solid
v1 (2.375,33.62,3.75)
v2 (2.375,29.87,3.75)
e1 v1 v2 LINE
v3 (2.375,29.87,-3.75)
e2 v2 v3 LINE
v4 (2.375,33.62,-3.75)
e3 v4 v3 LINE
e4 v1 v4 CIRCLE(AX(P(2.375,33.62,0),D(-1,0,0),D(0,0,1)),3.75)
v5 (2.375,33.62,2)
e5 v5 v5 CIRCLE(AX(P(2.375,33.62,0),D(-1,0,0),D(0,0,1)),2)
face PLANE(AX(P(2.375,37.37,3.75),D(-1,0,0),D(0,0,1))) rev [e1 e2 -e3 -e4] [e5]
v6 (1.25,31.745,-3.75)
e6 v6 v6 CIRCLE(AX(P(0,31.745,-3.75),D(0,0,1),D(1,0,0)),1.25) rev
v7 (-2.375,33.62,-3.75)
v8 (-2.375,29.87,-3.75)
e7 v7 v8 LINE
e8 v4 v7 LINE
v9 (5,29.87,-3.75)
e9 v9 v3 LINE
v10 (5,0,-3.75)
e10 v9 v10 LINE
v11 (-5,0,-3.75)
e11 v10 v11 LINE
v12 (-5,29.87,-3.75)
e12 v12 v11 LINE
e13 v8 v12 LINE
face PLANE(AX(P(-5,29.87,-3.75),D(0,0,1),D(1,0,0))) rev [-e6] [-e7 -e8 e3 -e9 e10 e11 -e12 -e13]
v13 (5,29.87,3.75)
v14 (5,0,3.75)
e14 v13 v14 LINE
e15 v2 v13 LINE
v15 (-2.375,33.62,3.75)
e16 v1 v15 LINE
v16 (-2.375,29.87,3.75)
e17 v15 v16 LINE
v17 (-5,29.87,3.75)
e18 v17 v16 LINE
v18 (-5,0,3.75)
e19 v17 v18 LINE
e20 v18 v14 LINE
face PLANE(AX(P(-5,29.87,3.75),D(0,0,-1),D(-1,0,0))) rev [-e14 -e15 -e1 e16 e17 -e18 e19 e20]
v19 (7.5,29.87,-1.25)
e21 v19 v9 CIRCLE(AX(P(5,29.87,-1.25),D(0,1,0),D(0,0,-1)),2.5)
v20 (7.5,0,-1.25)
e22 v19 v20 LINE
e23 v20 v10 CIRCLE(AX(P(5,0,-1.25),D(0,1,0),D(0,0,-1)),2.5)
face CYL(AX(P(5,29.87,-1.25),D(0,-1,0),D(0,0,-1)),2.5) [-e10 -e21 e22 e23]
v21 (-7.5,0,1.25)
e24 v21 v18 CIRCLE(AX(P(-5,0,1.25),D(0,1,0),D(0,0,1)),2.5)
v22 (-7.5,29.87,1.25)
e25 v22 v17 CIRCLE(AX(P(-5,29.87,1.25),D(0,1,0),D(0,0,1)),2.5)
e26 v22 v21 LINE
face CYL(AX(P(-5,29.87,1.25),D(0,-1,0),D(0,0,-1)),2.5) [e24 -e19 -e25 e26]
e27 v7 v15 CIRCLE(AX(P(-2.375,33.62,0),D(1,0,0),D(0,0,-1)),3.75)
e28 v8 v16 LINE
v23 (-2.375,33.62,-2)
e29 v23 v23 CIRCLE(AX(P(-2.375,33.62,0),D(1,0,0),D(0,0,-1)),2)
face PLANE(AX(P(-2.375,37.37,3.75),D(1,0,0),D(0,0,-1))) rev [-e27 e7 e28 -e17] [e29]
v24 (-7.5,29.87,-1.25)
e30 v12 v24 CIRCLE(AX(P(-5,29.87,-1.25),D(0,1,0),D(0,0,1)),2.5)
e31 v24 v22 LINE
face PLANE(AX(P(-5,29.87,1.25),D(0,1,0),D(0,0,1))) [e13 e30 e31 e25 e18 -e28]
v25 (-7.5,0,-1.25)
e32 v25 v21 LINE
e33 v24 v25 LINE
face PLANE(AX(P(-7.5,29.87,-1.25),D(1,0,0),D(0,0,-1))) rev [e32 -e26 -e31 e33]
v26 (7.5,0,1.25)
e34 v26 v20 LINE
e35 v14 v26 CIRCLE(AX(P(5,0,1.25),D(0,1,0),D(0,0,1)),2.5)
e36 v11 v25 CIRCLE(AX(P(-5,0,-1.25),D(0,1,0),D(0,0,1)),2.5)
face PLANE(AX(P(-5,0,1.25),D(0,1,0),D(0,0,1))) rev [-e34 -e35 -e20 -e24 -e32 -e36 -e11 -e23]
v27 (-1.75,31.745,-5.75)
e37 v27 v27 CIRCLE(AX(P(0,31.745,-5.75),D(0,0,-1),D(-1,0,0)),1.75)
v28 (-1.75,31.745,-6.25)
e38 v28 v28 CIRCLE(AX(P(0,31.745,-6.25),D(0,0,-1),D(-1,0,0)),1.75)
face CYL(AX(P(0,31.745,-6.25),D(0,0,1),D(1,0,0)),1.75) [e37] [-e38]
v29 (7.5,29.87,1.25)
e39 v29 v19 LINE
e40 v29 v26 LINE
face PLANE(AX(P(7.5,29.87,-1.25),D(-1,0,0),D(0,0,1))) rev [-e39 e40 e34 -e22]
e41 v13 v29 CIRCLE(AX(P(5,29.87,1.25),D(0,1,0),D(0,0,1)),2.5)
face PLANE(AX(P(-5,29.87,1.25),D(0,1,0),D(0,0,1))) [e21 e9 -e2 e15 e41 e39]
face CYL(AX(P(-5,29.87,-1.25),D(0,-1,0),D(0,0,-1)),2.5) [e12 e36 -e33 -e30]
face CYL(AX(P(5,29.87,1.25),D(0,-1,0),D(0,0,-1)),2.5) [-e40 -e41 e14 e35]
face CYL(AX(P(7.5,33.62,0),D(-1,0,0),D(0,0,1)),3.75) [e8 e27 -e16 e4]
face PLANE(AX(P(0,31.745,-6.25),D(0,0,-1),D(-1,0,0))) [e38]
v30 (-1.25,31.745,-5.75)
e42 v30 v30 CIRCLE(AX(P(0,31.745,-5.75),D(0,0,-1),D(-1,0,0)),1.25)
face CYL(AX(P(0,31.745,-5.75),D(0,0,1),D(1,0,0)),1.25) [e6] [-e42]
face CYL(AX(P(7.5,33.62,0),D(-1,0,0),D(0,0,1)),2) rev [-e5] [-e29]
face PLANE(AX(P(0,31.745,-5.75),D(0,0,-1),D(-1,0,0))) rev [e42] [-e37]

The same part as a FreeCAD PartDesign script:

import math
import FreeCAD as App
import Part
import Sketcher
from FreeCAD import Vector
Q = App.Units.Quantity

doc = App.newDocument("Part")
params = doc.addObject("Spreadsheet::Sheet", "Params")
for row, (alias, value) in enumerate([
    ("sketch1_radius", "2.5 mm"),
    ("sketch1_width", "10 mm"),
    ("sketch1_height", "2.5 mm"),
    ("pad1_length", "29.87 mm"),
    ("sketch2_height", "7.5 mm"),
    ("sketch2_width", "4.75 mm"),
    ("pad2_length", "7.5 mm"),
    ("sketch3_diameter", "4 mm"),
    ("sketch3_radius", "3.75 mm"),
    ("sketch4_diameter", "2.5 mm"),
    ("pad3_length", "2 mm"),
    ("sketch5_diameter", "3.5 mm"),
    ("pad4_length", "0.5 mm"),
], start=1):
    params.set(f"A{row}", alias)
    params.set(f"B{row}", "=" + value)
    params.setAlias(f"B{row}", alias)

body = doc.addObject("PartDesign::Body", "Body")

sketch1 = body.newObject("Sketcher::SketchObject", "Sketch")
sketch1.AttachmentSupport = (doc.getObject("XZ_Plane"), [""])
sketch1.MapMode = "FlatFace"
sketch1.addGeometry(Part.LineSegment(Vector(5, -3.8, 0), Vector(-5, -3.8, 0)), False)
sketch1.addGeometry(Part.ArcOfCircle(Part.Circle(Vector(-5, -1.2, 0), Vector(0, 0, 1), 2.5), math.radians(180), math.radians(270)), False)
sketch1.addGeometry(Part.LineSegment(Vector(-7.5, -1.2, 0), Vector(-7.5, 1.2, 0)), False)
sketch1.addGeometry(Part.ArcOfCircle(Part.Circle(Vector(-5, 1.2, 0), Vector(0, 0, 1), 2.5), math.radians(90), math.radians(180)), False)
sketch1.addGeometry(Part.LineSegment(Vector(-5, 3.8, 0), Vector(5, 3.8, 0)), False)
sketch1.addGeometry(Part.ArcOfCircle(Part.Circle(Vector(5, 1.2, 0), Vector(0, 0, 1), 2.5), math.radians(0), math.radians(90)), False)
sketch1.addGeometry(Part.LineSegment(Vector(7.5, 1.2, 0), Vector(7.5, -1.2, 0)), False)
sketch1.addGeometry(Part.ArcOfCircle(Part.Circle(Vector(5, -1.2, 0), Vector(0, 0, 1), 2.5), math.radians(-90), math.radians(0)), False)
sketch1.addConstraint(Sketcher.Constraint("Tangent", 0, 2, 1, 2))
sketch1.addConstraint(Sketcher.Constraint("Tangent", 1, 1, 2, 1))
sketch1.addConstraint(Sketcher.Constraint("Tangent", 2, 2, 3, 2))
sketch1.addConstraint(Sketcher.Constraint("Tangent", 3, 1, 4, 1))
sketch1.addConstraint(Sketcher.Constraint("Tangent", 4, 2, 5, 2))
sketch1.addConstraint(Sketcher.Constraint("Tangent", 5, 1, 6, 1))
sketch1.addConstraint(Sketcher.Constraint("Tangent", 6, 2, 7, 2))
sketch1.addConstraint(Sketcher.Constraint("Tangent", 7, 1, 0, 1))
sketch1.addConstraint(Sketcher.Constraint("Horizontal", 0))
sketch1.addConstraint(Sketcher.Constraint("Vertical", 2))
sketch1.addConstraint(Sketcher.Constraint("Horizontal", 4))
sketch1.addConstraint(Sketcher.Constraint("Vertical", 6))
sketch1.addConstraint(Sketcher.Constraint("Equal", 1, 3))
sketch1.addConstraint(Sketcher.Constraint("Equal", 3, 5))
sketch1.addConstraint(Sketcher.Constraint("Equal", 5, 7))
sketch1.addConstraint(Sketcher.Constraint("Symmetric", 1, 3, 5, 3, -1, 1))
sketch1.addConstraint(Sketcher.Constraint("Radius", 1, Q("2.5 mm")))
sketch1.addConstraint(Sketcher.Constraint("DistanceX", 0, 2, 0, 1, Q("10 mm")))
sketch1.addConstraint(Sketcher.Constraint("DistanceY", 2, 1, 2, 2, Q("2.5 mm")))
sketch1.setExpression("Constraints[16]", "Params.sketch1_radius")
sketch1.setExpression("Constraints[17]", "Params.sketch1_width")
sketch1.setExpression("Constraints[18]", "Params.sketch1_height")
pad1 = body.newObject("PartDesign::Pad", "Pad")
pad1.Profile = sketch1
pad1.setExpression("Length", "Params.pad1_length")
pad1.Reversed = True

sketch2 = body.newObject("Sketcher::SketchObject", "Sketch001")
sketch2.AttachmentSupport = (doc.getObject("XZ_Plane"), [""])
sketch2.MapMode = "FlatFace"
sketch2.AttachmentOffset = App.Placement(Vector(0, 0, -29.87), App.Rotation())
sketch2.addGeometry(Part.LineSegment(Vector(-2.4, -3.8, 0), Vector(-2.4, 3.8, 0)), False)
sketch2.addGeometry(Part.LineSegment(Vector(-2.4, 3.8, 0), Vector(2.4, 3.8, 0)), False)
sketch2.addGeometry(Part.LineSegment(Vector(2.4, 3.8, 0), Vector(2.4, -3.8, 0)), False)
sketch2.addGeometry(Part.LineSegment(Vector(2.4, -3.8, 0), Vector(-2.4, -3.8, 0)), False)
sketch2.addConstraint(Sketcher.Constraint("Coincident", 0, 2, 1, 1))
sketch2.addConstraint(Sketcher.Constraint("Coincident", 1, 2, 2, 1))
sketch2.addConstraint(Sketcher.Constraint("Coincident", 2, 2, 3, 1))
sketch2.addConstraint(Sketcher.Constraint("Coincident", 3, 2, 0, 1))
sketch2.addConstraint(Sketcher.Constraint("Vertical", 0))
sketch2.addConstraint(Sketcher.Constraint("Horizontal", 1))
sketch2.addConstraint(Sketcher.Constraint("Vertical", 2))
sketch2.addConstraint(Sketcher.Constraint("Horizontal", 3))
sketch2.addConstraint(Sketcher.Constraint("Symmetric", 0, 2, 2, 2, -1, 1))
sketch2.addConstraint(Sketcher.Constraint("DistanceY", 0, 1, 0, 2, Q("7.5 mm")))
sketch2.addConstraint(Sketcher.Constraint("DistanceX", 1, 1, 1, 2, Q("4.75 mm")))
sketch2.setExpression("Constraints[9]", "Params.sketch2_height")
sketch2.setExpression("Constraints[10]", "Params.sketch2_width")
pad2 = body.newObject("PartDesign::Pad", "Pad001")
pad2.Profile = sketch2
pad2.setExpression("Length", "Params.pad2_length")
pad2.Reversed = True

sketch3 = body.newObject("Sketcher::SketchObject", "Sketch002")
sketch3.AttachmentSupport = (doc.getObject("YZ_Plane"), [""])
sketch3.MapMode = "FlatFace"
sketch3.AttachmentOffset = App.Placement(Vector(0, 0, -2.375), App.Rotation())
sketch3.addGeometry(Part.LineSegment(Vector(37.4, -3.8, 0), Vector(33.6, -3.8, 0)), False)
sketch3.addGeometry(Part.ArcOfCircle(Part.Circle(Vector(33.6, 0, 0), Vector(0, 0, 1), 3.8), math.radians(-90), math.radians(0)), False)
sketch3.addGeometry(Part.LineSegment(Vector(37.4, 0, 0), Vector(37.4, -3.8, 0)), False)
sketch3.addGeometry(Part.ArcOfCircle(Part.Circle(Vector(33.6, 0, 0), Vector(0, 0, 1), 3.8), math.radians(0), math.radians(90)), False)
sketch3.addGeometry(Part.LineSegment(Vector(33.6, 3.8, 0), Vector(37.4, 3.8, 0)), False)
sketch3.addGeometry(Part.LineSegment(Vector(37.4, 3.8, 0), Vector(37.4, 0, 0)), False)
sketch3.addGeometry(Part.Circle(Vector(33.6, 0, 0), Vector(0, 0, 1), 2), False)
sketch3.addConstraint(Sketcher.Constraint("Tangent", 0, 2, 1, 1))
sketch3.addConstraint(Sketcher.Constraint("Tangent", 1, 2, 2, 1))
sketch3.addConstraint(Sketcher.Constraint("Coincident", 2, 2, 0, 1))
sketch3.addConstraint(Sketcher.Constraint("Tangent", 3, 2, 4, 1))
sketch3.addConstraint(Sketcher.Constraint("Coincident", 4, 2, 5, 1))
sketch3.addConstraint(Sketcher.Constraint("Tangent", 5, 2, 3, 1))
sketch3.addConstraint(Sketcher.Constraint("Horizontal", 0))
sketch3.addConstraint(Sketcher.Constraint("Vertical", 2))
sketch3.addConstraint(Sketcher.Constraint("Horizontal", 4))
sketch3.addConstraint(Sketcher.Constraint("Vertical", 5))
sketch3.addConstraint(Sketcher.Constraint("Coincident", 3, 3, 1, 3))
sketch3.addConstraint(Sketcher.Constraint("Coincident", 6, 3, 1, 3))
sketch3.addConstraint(Sketcher.Constraint("Equal", 1, 3))
sketch3.addConstraint(Sketcher.Constraint("PointOnObject", 1, 3, -1))
sketch3.addConstraint(Sketcher.Constraint("Diameter", 6, Q("4 mm")))
sketch3.addConstraint(Sketcher.Constraint("Radius", 1, Q("3.75 mm")))
sketch3.addConstraint(Sketcher.Constraint("DistanceX", -1, 1, 1, 3, Q("33.62 mm")))
sketch3.setExpression("Constraints[14]", "Params.sketch3_diameter")
sketch3.setExpression("Constraints[15]", "Params.sketch3_radius")
pocket1 = body.newObject("PartDesign::Pocket", "Pocket")
pocket1.Profile = sketch3
pocket1.Type = "ThroughAll"
pocket1.Midplane = True

sketch4 = body.newObject("Sketcher::SketchObject", "Sketch003")
sketch4.AttachmentSupport = (doc.getObject("XY_Plane"), [""])
sketch4.MapMode = "FlatFace"
sketch4.AttachmentOffset = App.Placement(Vector(0, 0, -3.75), App.Rotation())
sketch4.addGeometry(Part.Circle(Vector(0, 31.7, 0), Vector(0, 0, 1), 1.2), False)
sketch4.addConstraint(Sketcher.Constraint("PointOnObject", 0, 3, -2))
sketch4.addConstraint(Sketcher.Constraint("Diameter", 0, Q("2.5 mm")))
sketch4.addConstraint(Sketcher.Constraint("DistanceY", -1, 1, 0, 3, Q("31.745 mm")))
sketch4.setExpression("Constraints[1]", "Params.sketch4_diameter")
pad3 = body.newObject("PartDesign::Pad", "Pad002")
pad3.Profile = sketch4
pad3.setExpression("Length", "Params.pad3_length")
pad3.Reversed = True

sketch5 = body.newObject("Sketcher::SketchObject", "Sketch004")
sketch5.AttachmentSupport = (doc.getObject("XY_Plane"), [""])
sketch5.MapMode = "FlatFace"
sketch5.AttachmentOffset = App.Placement(Vector(0, 0, -5.75), App.Rotation())
sketch5.addGeometry(Part.Circle(Vector(0, 31.7, 0), Vector(0, 0, 1), 1.8), False)
sketch5.addConstraint(Sketcher.Constraint("PointOnObject", 0, 3, -2))
sketch5.addConstraint(Sketcher.Constraint("Diameter", 0, Q("3.5 mm")))
sketch5.addConstraint(Sketcher.Constraint("DistanceY", -1, 1, 0, 3, Q("31.745 mm")))
sketch5.setExpression("Constraints[1]", "Params.sketch5_diameter")
pad4 = body.newObject("PartDesign::Pad", "Pad003")
pad4.Profile = sketch5
pad4.setExpression("Length", "Params.pad4_length")
pad4.Reversed = True

doc.recompute()
